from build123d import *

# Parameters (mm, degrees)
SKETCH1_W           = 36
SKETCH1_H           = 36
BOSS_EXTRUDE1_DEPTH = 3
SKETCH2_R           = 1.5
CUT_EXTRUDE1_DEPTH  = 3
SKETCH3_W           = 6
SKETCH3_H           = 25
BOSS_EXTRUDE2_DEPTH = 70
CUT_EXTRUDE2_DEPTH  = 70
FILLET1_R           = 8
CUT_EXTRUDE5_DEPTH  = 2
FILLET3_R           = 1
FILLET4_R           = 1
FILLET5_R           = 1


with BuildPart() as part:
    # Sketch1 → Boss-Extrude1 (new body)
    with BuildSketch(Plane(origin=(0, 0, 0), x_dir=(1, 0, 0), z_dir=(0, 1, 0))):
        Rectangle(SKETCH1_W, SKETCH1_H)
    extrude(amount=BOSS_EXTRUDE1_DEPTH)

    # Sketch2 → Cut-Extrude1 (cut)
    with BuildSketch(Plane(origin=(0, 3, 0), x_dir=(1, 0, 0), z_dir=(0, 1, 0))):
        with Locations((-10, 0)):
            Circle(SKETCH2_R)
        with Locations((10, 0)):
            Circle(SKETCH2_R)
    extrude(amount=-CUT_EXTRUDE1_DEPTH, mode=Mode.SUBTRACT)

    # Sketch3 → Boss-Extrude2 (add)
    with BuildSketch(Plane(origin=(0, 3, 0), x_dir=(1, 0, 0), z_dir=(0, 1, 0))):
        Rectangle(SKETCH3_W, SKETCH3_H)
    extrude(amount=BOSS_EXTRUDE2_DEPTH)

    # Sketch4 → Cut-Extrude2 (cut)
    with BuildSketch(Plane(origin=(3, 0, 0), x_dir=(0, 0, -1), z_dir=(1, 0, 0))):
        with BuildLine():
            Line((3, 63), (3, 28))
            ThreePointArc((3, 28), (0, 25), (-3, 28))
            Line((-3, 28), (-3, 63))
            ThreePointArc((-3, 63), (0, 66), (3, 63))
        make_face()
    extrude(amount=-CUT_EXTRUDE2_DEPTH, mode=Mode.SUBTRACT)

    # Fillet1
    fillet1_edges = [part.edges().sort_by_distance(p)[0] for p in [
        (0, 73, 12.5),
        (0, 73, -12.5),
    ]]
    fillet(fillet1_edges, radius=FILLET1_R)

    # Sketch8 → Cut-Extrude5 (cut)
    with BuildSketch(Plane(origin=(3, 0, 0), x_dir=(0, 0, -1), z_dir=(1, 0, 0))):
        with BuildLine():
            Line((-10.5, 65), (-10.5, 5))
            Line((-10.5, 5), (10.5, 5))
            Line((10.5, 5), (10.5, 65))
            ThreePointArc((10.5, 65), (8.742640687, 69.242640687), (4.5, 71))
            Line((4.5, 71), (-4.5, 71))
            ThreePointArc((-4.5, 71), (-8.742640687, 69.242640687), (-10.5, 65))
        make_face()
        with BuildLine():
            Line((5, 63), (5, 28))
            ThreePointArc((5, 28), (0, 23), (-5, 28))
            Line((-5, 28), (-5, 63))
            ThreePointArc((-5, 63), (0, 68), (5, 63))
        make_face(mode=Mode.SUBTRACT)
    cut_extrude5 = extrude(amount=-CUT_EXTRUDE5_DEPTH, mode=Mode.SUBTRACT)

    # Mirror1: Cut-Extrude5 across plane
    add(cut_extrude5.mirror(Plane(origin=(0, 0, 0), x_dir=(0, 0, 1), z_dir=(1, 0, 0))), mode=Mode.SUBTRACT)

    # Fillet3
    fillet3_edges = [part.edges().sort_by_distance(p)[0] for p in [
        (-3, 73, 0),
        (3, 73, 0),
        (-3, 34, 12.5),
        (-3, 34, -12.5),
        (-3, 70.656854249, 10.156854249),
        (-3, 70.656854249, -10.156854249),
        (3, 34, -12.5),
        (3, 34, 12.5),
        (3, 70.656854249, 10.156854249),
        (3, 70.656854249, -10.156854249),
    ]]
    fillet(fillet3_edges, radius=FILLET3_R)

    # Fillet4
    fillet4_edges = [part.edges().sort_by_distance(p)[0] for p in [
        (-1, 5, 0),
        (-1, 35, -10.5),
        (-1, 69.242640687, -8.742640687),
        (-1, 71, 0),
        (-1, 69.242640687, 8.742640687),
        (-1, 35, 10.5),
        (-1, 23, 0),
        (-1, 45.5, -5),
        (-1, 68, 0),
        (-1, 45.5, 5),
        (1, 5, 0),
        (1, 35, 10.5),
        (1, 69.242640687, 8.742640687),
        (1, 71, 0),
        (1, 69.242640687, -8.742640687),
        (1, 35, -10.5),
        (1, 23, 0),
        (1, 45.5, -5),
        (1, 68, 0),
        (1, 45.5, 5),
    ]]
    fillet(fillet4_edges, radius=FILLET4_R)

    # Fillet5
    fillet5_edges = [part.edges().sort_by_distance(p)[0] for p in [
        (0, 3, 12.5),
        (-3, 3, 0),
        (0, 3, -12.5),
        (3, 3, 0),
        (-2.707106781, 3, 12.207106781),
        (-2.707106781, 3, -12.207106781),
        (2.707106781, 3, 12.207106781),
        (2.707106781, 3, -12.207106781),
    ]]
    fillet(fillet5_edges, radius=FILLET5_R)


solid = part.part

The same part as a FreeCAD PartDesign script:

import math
import FreeCAD as App
import Part
import Sketcher
Q = App.Units.Quantity


def edges_at(feature, points):
    """Names of the edges that pass closest to the given points."""
    edges = feature.Shape.Edges
    near = lambda p: min(range(len(edges)), key=lambda i: edges[i].distToShape(Part.Vertex(*p))[0])
    return sorted({f"Edge{near(p) + 1}" for p in points})

doc = App.newDocument("Part")
body = doc.addObject("PartDesign::Body", "Body")

sketch1 = body.newObject("Sketcher::SketchObject", "Sketch")
sketch1.AttachmentSupport = (doc.getObject("XZ_Plane"), [""])
sketch1.MapMode = "FlatFace"
sketch1.addGeometry([
    Part.LineSegment(App.Vector(-18, -18, 0), App.Vector(-18, 18, 0)),
    Part.LineSegment(App.Vector(-18, 18, 0), App.Vector(18, 18, 0)),
    Part.LineSegment(App.Vector(18, 18, 0), App.Vector(18, -18, 0)),
    Part.LineSegment(App.Vector(18, -18, 0), App.Vector(-18, -18, 0)),
], False)
sketch1.addConstraint([
    Sketcher.Constraint("Coincident", 0, 2, 1, 1),
    Sketcher.Constraint("Coincident", 1, 2, 2, 1),
    Sketcher.Constraint("Coincident", 2, 2, 3, 1),
    Sketcher.Constraint("Coincident", 3, 2, 0, 1),
    Sketcher.Constraint("Vertical", 0),
    Sketcher.Constraint("Horizontal", 1),
    Sketcher.Constraint("Vertical", 2),
    Sketcher.Constraint("Horizontal", 3),
    Sketcher.Constraint("Symmetric", 0, 2, 2, 2, -1, 1),
    Sketcher.Constraint("Equal", 3, 0),
    Sketcher.Constraint("DistanceX", 1, 1, 1, 2, Q("36 mm")),
])
pad1 = body.newObject("PartDesign::Pad", "Pad")
pad1.Profile = sketch1
pad1.Length = 3
pad1.Reversed = True

sketch2 = body.newObject("Sketcher::SketchObject", "Sketch001")
sketch2.AttachmentSupport = (doc.getObject("XZ_Plane"), [""])
sketch2.MapMode = "FlatFace"
sketch2.AttachmentOffset = App.Placement(App.Vector(0, 0, -3), App.Rotation())
sketch2.addGeometry([
    Part.Circle(App.Vector(-10, 0, 0), App.Vector(0, 0, 1), 1.5),
    Part.Circle(App.Vector(10, 0, 0), App.Vector(0, 0, 1), 1.5),
], False)
sketch2.addConstraint([
    Sketcher.Constraint("Equal", 0, 1),
    Sketcher.Constraint("Symmetric", 0, 3, 1, 3, -1, 1),
    Sketcher.Constraint("PointOnObject", 0, 3, -1),
    Sketcher.Constraint("Diameter", 0, Q("3 mm")),
    Sketcher.Constraint("DistanceX", 0, 3, -1, 1, Q("10 mm")),
])
pocket1 = body.newObject("PartDesign::Pocket", "Pocket")
pocket1.Profile = sketch2
pocket1.Length = 3
pocket1.Reversed = True

sketch3 = body.newObject("Sketcher::SketchObject", "Sketch002")
sketch3.AttachmentSupport = (doc.getObject("XZ_Plane"), [""])
sketch3.MapMode = "FlatFace"
sketch3.AttachmentOffset = App.Placement(App.Vector(0, 0, -3), App.Rotation())
sketch3.addGeometry([
    Part.LineSegment(App.Vector(-3, -12.5, 0), App.Vector(-3, 12.5, 0)),
    Part.LineSegment(App.Vector(-3, 12.5, 0), App.Vector(3, 12.5, 0)),
    Part.LineSegment(App.Vector(3, 12.5, 0), App.Vector(3, -12.5, 0)),
    Part.LineSegment(App.Vector(3, -12.5, 0), App.Vector(-3, -12.5, 0)),
], False)
sketch3.addConstraint([
    Sketcher.Constraint("Coincident", 0, 2, 1, 1),
    Sketcher.Constraint("Coincident", 1, 2, 2, 1),
    Sketcher.Constraint("Coincident", 2, 2, 3, 1),
    Sketcher.Constraint("Coincident", 3, 2, 0, 1),
    Sketcher.Constraint("Vertical", 0),
    Sketcher.Constraint("Horizontal", 1),
    Sketcher.Constraint("Vertical", 2),
    Sketcher.Constraint("Horizontal", 3),
    Sketcher.Constraint("Symmetric", 0, 2, 2, 2, -1, 1),
    Sketcher.Constraint("DistanceX", 1, 1, 1, 2, Q("6 mm")),
    Sketcher.Constraint("DistanceY", 0, 1, 0, 2, Q("25 mm")),
])
pad2 = body.newObject("PartDesign::Pad", "Pad001")
pad2.Profile = sketch3
pad2.Length = 70
pad2.Reversed = True

sketch4 = body.newObject("Sketcher::SketchObject", "Sketch003")
sketch4.AttachmentSupport = (doc.getObject("YZ_Plane"), [""])
sketch4.MapMode = "FlatFace"
sketch4.AttachmentOffset = App.Placement(App.Vector(0, 0, 3), App.Rotation())
sketch4.addGeometry([
    Part.LineSegment(App.Vector(28, -3, 0), App.Vector(63, -3, 0)),
    Part.ArcOfCircle(Part.Circle(App.Vector(63, 0, 0), App.Vector(0, 0, 1), 3), math.radians(-90), math.radians(90)),
    Part.LineSegment(App.Vector(63, 3, 0), App.Vector(28, 3, 0)),
    Part.ArcOfCircle(Part.Circle(App.Vector(28, 0, 0), App.Vector(0, 0, 1), 3), math.radians(90), math.radians(270)),
], False)
sketch4.addConstraint([
    Sketcher.Constraint("Tangent", 0, 2, 1, 1),
    Sketcher.Constraint("Tangent", 1, 2, 2, 1),
    Sketcher.Constraint("Tangent", 2, 2, 3, 1),
    Sketcher.Constraint("Tangent", 3, 2, 0, 1),
    Sketcher.Constraint("Horizontal", 0),
    Sketcher.Constraint("Horizontal", 2),
    Sketcher.Constraint("PointOnObject", 1, 3, -1),
    Sketcher.Constraint("Radius", 1, Q("3 mm")),
    Sketcher.Constraint("DistanceX", 0, 1, 0, 2, Q("35 mm")),
    Sketcher.Constraint("DistanceX", -1, 1, 1, 3, Q("63 mm")),
])
pocket2 = body.newObject("PartDesign::Pocket", "Pocket001")
pocket2.Profile = sketch4
pocket2.Length = 70
doc.recompute()

fillet = body.newObject("PartDesign::Fillet", "Fillet")
fillet.Base = (pocket2, edges_at(pocket2, [(0, 73, 12.5), (0, 73, -12.5)]))
fillet.Radius = 8

sketch5 = body.newObject("Sketcher::SketchObject", "Sketch004")
sketch5.AttachmentSupport = (doc.getObject("YZ_Plane"), [""])
sketch5.MapMode = "FlatFace"
sketch5.AttachmentOffset = App.Placement(App.Vector(0, 0, 3), App.Rotation())
sketch5.addGeometry([
    Part.LineSegment(App.Vector(65, 10.5, 0), App.Vector(5, 10.5, 0)),
    Part.LineSegment(App.Vector(5, 10.5, 0), App.Vector(5, -10.5, 0)),
    Part.LineSegment(App.Vector(5, -10.5, 0), App.Vector(65, -10.5, 0)),
    Part.ArcOfCircle(Part.Circle(App.Vector(65, -4.5, 0), App.Vector(0, 0, 1), 6), math.radians(-90), math.radians(0)),
    Part.LineSegment(App.Vector(71, -4.5, 0), App.Vector(71, 4.5, 0)),
    Part.ArcOfCircle(Part.Circle(App.Vector(65, 4.5, 0), App.Vector(0, 0, 1), 6), math.radians(0), math.radians(90)),
    Part.ArcOfCircle(Part.Circle(App.Vector(63, 0, 0), App.Vector(0, 0, 1), 5), math.radians(-90), math.radians(90)),
    Part.LineSegment(App.Vector(63, -5, 0), App.Vector(28, -5, 0)),
    Part.ArcOfCircle(Part.Circle(App.Vector(28, 0, 0), App.Vector(0, 0, 1), 5), math.radians(90), math.radians(270)),
    Part.LineSegment(App.Vector(28, 5, 0), App.Vector(63, 5, 0)),
], False)
sketch5.addConstraint([
    Sketcher.Constraint("Coincident", 0, 2, 1, 1),
    Sketcher.Constraint("Coincident", 1, 2, 2, 1),
    Sketcher.Constraint("Tangent", 2, 2, 3, 1),
    Sketcher.Constraint("Tangent", 3, 2, 4, 1),
    Sketcher.Constraint("Tangent", 4, 2, 5, 1),
    Sketcher.Constraint("Tangent", 5, 2, 0, 1),
    Sketcher.Constraint("Tangent", 6, 1, 7, 1),
    Sketcher.Constraint("Tangent", 7, 2, 8, 2),
    Sketcher.Constraint("Tangent", 8, 1, 9, 1),
    Sketcher.Constraint("Tangent", 9, 2, 6, 2),
    Sketcher.Constraint("Horizontal", 0),
    Sketcher.Constraint("Vertical", 1),
    Sketcher.Constraint("Horizontal", 2),
    Sketcher.Constraint("Vertical", 4),
    Sketcher.Constraint("Horizontal", 7),
    Sketcher.Constraint("Horizontal", 9),
    Sketcher.Constraint("Equal", 3, 5),
    Sketcher.Constraint("PointOnObject", 6, 3, -1),
    Sketcher.Constraint("Radius", 3, Q("6 mm")),
    Sketcher.Constraint("Radius", 6, Q("5 mm")),
    Sketcher.Constraint("DistanceX", 0, 2, 0, 1, Q("60 mm")),
    Sketcher.Constraint("DistanceX", 7, 2, 7, 1, Q("35 mm")),
    Sketcher.Constraint("DistanceY", 1, 2, 1, 1, Q("21 mm")),
    Sketcher.Constraint("DistanceX", -1, 1, 3, 3, Q("65 mm")),
    Sketcher.Constraint("DistanceX", -1, 1, 6, 3, Q("63 mm")),
    Sketcher.Constraint("DistanceY", 3, 3, -1, 1, Q("4.5 mm")),
])
pocket3 = body.newObject("PartDesign::Pocket", "Pocket002")
pocket3.Profile = sketch5
pocket3.Length = 2
doc.recompute()

mirrored = body.newObject("PartDesign::Mirrored", "Mirrored")
mirrored.Originals = [pocket3]
mirrored.MirrorPlane = (doc.getObject("YZ_Plane"), [""])
body.Tip = mirrored
doc.recompute()

fillet2 = body.newObject("PartDesign::Fillet", "Fillet001")
fillet2.Base = (mirrored, edges_at(mirrored, [
    (-3, 73, 0),
    (3, 73, 0),
    (-3, 34, 12.5),
    (-3, 34, -12.5),
    (-3, 70.657, 10.157),
    (-3, 70.657, -10.157),
    (3, 34, -12.5),
    (3, 34, 12.5),
    (3, 70.657, 10.157),
    (3, 70.657, -10.157),
]))
fillet2.Radius = 1
doc.recompute()

fillet3 = body.newObject("PartDesign::Fillet", "Fillet002")
fillet3.Base = (fillet2, edges_at(fillet2, [
    (-1, 5, 0),
    (-1, 35, -10.5),
    (-1, 69.243, -8.743),
    (-1, 71, 0),
    (-1, 69.243, 8.743),
    (-1, 35, 10.5),
    (-1, 23, 0),
    (-1, 45.5, -5),
    (-1, 68, 0),
    (-1, 45.5, 5),
    (1, 5, 0),
    (1, 35, 10.5),
    (1, 69.243, 8.743),
    (1, 71, 0),
    (1, 69.243, -8.743),
    (1, 35, -10.5),
    (1, 23, 0),
    (1, 45.5, -5),
    (1, 68, 0),
    (1, 45.5, 5),
]))
fillet3.Radius = 1
doc.recompute()

fillet4 = body.newObject("PartDesign::Fillet", "Fillet003")
fillet4.Base = (fillet3, edges_at(fillet3, [
    (0, 3, 12.5),
    (-3, 3, 0),
    (0, 3, -12.5),
    (3, 3, 0),
    (-2.707, 3, 12.207),
    (-2.707, 3, -12.207),
    (2.707, 3, 12.207),
    (2.707, 3, -12.207),
]))
fillet4.Radius = 1

doc.recompute()
